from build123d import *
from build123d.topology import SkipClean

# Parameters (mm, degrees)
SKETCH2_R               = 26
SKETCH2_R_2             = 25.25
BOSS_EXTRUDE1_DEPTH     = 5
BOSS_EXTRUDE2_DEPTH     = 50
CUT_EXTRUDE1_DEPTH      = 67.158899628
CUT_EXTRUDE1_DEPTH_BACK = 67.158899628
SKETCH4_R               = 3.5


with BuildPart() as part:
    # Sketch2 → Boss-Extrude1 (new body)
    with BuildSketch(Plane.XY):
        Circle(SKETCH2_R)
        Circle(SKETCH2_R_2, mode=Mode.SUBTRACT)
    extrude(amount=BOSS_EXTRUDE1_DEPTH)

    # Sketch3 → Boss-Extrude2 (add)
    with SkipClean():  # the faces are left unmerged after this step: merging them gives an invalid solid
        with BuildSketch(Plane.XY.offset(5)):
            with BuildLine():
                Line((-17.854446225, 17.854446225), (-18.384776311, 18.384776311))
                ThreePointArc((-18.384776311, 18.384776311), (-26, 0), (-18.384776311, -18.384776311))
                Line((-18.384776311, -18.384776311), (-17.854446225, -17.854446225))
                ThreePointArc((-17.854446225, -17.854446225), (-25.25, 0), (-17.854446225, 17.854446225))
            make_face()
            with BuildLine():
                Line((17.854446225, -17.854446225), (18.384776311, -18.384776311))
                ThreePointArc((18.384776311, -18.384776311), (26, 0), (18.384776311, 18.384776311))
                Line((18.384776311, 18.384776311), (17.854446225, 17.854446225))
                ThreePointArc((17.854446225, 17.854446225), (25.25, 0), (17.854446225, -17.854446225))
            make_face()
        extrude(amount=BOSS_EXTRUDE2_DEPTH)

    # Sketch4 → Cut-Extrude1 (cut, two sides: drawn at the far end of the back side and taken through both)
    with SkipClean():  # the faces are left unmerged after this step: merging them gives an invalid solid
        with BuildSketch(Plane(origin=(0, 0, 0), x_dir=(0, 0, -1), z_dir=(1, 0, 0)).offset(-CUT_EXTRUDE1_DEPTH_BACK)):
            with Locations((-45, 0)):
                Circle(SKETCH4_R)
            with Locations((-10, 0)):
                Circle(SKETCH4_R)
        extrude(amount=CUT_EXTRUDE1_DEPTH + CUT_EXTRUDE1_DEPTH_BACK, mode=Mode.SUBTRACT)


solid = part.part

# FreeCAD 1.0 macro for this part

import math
import FreeCAD as App
import Part
import Sketcher
Q = App.Units.Quantity

doc = App.newDocument("Part")
params = doc.addObject("Spreadsheet::Sheet", "Params")
for row, (alias, value) in enumerate([
    ("sketch1_diameter", "52 mm"),
    ("sketch1_diameter2", "50.5 mm"),
    ("pad1_length", "5 mm"),
    ("sketch2_radius", "26 mm"),
    ("sketch2_radius2", "25.25 mm"),
    ("pad2_length", "50 mm"),
    ("sketch3_diameter", "7 mm"),
], start=1):
    params.set(f"A{row}", alias)
    params.set(f"B{row}", "=" + value)
    params.setAlias(f"B{row}", alias)

body = doc.addObject("PartDesign::Body", "Body")

# Sketch on XY plane
sketch1 = doc.addObject("Sketcher::SketchObject", "Sketch")
body.addObject(sketch1)
sketch1.AttachmentSupport = (doc.XY_Plane, [""])
sketch1.MapMode = "FlatFace"
sketch1.addGeometry([
    Part.Circle(App.Vector(0, 0, 0), App.Vector(0, 0, 1), 26),
    Part.Circle(App.Vector(0, 0, 0), App.Vector(0, 0, 1), 25),
], False)
sketch1.addConstraint([
    Sketcher.Constraint("Coincident", 0, 3, -1, 1),
    Sketcher.Constraint("Coincident", 1, 3, -1, 1),
    Sketcher.Constraint("Diameter", 0, Q("52 mm")),
    Sketcher.Constraint("Diameter", 1, Q("50.5 mm")),
])
sketch1.setExpression("Constraints[2]", "Params.sketch1_diameter")
sketch1.setExpression("Constraints[3]", "Params.sketch1_diameter2")
pad1 = doc.addObject("PartDesign::Pad", "Pad")
body.addObject(pad1)
pad1.Profile = sketch1
pad1.setExpression("Length", "Params.pad1_length")

# Sketch on XY plane
sketch2 = doc.addObject("Sketcher::SketchObject", "Sketch001")
body.addObject(sketch2)
sketch2.AttachmentSupport = (doc.XY_Plane, [""])
sketch2.MapMode = "FlatFace"
sketch2.AttachmentOffset = App.Placement(App.Vector(0, 0, 5), App.Rotation())
sketch2.addGeometry([
    Part.LineSegment(App.Vector(-17.9, 17.9, 0), App.Vector(-18.4, 18.4, 0)),  # 0
    Part.ArcOfCircle(Part.Circle(App.Vector(0, 0, 0), App.Vector(0, 0, 1), 26), math.radians(135), math.radians(225)),  # 1
    Part.LineSegment(App.Vector(-18.4, -18.4, 0), App.Vector(-17.9, -17.9, 0)),  # 2
    Part.ArcOfCircle(Part.Circle(App.Vector(0, 0, 0), App.Vector(0, 0, 1), 25.2), math.radians(135), math.radians(225)),  # 3
    Part.LineSegment(App.Vector(17.9, -17.9, 0), App.Vector(18.4, -18.4, 0)),  # 4
    Part.ArcOfCircle(Part.Circle(App.Vector(0, 0, 0), App.Vector(0, 0, 1), 26), math.radians(-45), math.radians(45)),  # 5
    Part.LineSegment(App.Vector(18.4, 18.4, 0), App.Vector(17.9, 17.9, 0)),  # 6
    Part.ArcOfCircle(Part.Circle(App.Vector(0, 0, 0), App.Vector(0, 0, 1), 25.2), math.radians(-45), math.radians(45)),  # 7
], False)
sketch2.addConstraint([
    Sketcher.Constraint("Coincident", 0, 2, 1, 1),
    Sketcher.Constraint("Coincident", 1, 2, 2, 1),
    Sketcher.Constraint("Coincident", 2, 2, 3, 2),
    Sketcher.Constraint("Coincident", 3, 1, 0, 1),
    Sketcher.Constraint("Coincident", 4, 2, 5, 1),
    Sketcher.Constraint("Coincident", 5, 2, 6, 1),
    Sketcher.Constraint("Coincident", 6, 2, 7, 2),
    Sketcher.Constraint("Coincident", 7, 1, 4, 1),
    Sketcher.Constraint("Coincident", 1, 3, -1, 1),
    Sketcher.Constraint("Coincident", 3, 3, -1, 1),
    Sketcher.Constraint("Coincident", 5, 3, -1, 1),
    Sketcher.Constraint("Coincident", 7, 3, -1, 1),
    Sketcher.Constraint("Equal", 1, 5),
    Sketcher.Constraint("Equal", 3, 7),
    Sketcher.Constraint("Perpendicular", 0, 2),
    Sketcher.Constraint("Perpendicular", 2, 4),
    Sketcher.Constraint("Perpendicular", 4, 6),
    Sketcher.Constraint("Horizontal", 1, 2, 4, 2),
    Sketcher.Constraint("Horizontal", 0, 2, 5, 2),
    Sketcher.Constraint("Horizontal", 3, 1, 6, 2),
    Sketcher.Constraint("Vertical", 0, 2, 1, 2),
    Sketcher.Constraint("Radius", 1, Q("26 mm")),
    Sketcher.Constraint("Radius", 3, Q("25.25 mm")),
    Sketcher.Constraint("DistanceX", 0, 2, -1, 1, Q("18.384776 mm")),
])
sketch2.setExpression("Constraints[21]", "Params.sketch2_radius")
sketch2.setExpression("Constraints[22]", "Params.sketch2_radius2")
pad2 = doc.addObject("PartDesign::Pad", "Pad001")
body.addObject(pad2)
pad2.Profile = sketch2
pad2.setExpression("Length", "Params.pad2_length")

# Sketch on YZ plane
sketch3 = doc.addObject("Sketcher::SketchObject", "Sketch002")
body.addObject(sketch3)
sketch3.AttachmentSupport = (doc.YZ_Plane, [""])
sketch3.MapMode = "FlatFace"
sketch3.addGeometry([
    Part.Circle(App.Vector(0, 45, 0), App.Vector(0, 0, 1), 3.5),
    Part.Circle(App.Vector(0, 10, 0), App.Vector(0, 0, 1), 3.5),
], False)
sketch3.addConstraint([
    Sketcher.Constraint("Equal", 0, 1),
    Sketcher.Constraint("PointOnObject", 0, 3, -2),
    Sketcher.Constraint("PointOnObject", 1, 3, -2),
    Sketcher.Constraint("Diameter", 0, Q("7 mm")),
    Sketcher.Constraint("DistanceY", -1, 1, 0, 3, Q("45 mm")),
    Sketcher.Constraint("DistanceY", -1, 1, 1, 3, Q("10 mm")),
])
sketch3.setExpression("Constraints[3]", "Params.sketch3_diameter")
pocket1 = doc.addObject("PartDesign::Pocket", "Pocket")
body.addObject(pocket1)
pocket1.Profile = sketch3
pocket1.Type = "ThroughAll"
pocket1.Midplane = True

doc.recompute()
